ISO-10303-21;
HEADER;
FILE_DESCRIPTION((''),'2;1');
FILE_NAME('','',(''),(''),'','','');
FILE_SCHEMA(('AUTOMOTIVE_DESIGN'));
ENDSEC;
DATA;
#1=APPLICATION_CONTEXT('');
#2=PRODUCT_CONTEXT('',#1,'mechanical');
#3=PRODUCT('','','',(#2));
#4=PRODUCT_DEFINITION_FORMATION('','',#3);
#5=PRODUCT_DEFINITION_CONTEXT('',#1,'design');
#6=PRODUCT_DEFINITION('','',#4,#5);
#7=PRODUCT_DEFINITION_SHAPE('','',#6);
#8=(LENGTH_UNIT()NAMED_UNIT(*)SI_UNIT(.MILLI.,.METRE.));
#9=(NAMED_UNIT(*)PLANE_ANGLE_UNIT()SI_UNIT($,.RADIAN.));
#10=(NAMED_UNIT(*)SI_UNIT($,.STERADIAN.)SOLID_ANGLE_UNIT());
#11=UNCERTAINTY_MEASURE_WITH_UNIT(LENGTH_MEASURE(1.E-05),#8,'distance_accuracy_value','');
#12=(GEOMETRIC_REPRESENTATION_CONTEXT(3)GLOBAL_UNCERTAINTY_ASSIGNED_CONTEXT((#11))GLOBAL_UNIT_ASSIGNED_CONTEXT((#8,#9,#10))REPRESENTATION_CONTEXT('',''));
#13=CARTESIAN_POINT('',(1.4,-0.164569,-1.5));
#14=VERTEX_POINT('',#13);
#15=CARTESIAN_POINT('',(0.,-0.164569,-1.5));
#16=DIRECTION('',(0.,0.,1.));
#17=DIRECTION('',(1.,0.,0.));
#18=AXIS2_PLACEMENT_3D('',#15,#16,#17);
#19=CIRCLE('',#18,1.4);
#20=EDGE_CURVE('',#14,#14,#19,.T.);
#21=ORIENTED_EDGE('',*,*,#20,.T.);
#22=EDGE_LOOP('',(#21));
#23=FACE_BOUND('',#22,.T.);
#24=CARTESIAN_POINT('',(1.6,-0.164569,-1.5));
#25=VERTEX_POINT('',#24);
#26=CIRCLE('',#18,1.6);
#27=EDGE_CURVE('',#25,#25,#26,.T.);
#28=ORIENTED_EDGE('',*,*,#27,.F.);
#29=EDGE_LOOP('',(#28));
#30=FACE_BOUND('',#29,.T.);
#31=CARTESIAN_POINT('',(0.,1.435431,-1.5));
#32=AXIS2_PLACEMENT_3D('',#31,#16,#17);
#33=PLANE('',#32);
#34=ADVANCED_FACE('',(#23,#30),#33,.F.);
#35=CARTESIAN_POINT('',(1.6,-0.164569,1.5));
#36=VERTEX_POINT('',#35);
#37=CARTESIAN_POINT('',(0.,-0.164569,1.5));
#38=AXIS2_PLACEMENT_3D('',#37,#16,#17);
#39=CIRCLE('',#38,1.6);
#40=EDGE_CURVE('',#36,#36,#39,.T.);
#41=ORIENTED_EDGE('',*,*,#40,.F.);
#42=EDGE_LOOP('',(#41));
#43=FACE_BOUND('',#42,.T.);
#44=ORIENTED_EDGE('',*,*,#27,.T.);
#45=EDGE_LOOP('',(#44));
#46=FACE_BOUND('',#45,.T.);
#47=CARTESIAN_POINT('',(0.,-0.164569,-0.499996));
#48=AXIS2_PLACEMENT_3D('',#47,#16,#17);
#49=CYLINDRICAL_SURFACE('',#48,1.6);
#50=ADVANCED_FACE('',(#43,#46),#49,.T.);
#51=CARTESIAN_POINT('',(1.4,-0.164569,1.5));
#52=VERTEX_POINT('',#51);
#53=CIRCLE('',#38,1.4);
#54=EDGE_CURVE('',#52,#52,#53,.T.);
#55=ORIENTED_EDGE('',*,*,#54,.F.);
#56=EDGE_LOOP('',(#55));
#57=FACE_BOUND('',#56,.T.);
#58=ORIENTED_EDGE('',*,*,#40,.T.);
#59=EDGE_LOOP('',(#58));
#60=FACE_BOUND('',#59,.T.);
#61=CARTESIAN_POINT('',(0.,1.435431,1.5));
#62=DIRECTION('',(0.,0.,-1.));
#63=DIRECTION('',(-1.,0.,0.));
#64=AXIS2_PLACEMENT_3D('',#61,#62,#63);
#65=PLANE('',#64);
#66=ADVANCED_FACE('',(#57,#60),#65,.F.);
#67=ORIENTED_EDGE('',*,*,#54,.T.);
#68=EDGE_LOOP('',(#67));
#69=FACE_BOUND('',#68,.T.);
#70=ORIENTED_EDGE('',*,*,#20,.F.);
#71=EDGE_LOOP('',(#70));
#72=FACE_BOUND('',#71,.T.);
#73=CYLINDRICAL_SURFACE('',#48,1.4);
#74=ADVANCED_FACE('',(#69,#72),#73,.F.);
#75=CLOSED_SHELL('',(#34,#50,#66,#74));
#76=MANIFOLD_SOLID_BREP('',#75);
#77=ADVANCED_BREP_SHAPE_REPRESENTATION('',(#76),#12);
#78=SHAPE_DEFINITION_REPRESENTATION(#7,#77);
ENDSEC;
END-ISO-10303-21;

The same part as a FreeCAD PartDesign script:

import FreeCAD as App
import Part
import Sketcher
from FreeCAD import Vector
Q = App.Units.Quantity

doc = App.newDocument("Part")
params = doc.addObject("Spreadsheet::Sheet", "Params")
for row, (alias, value) in enumerate([
    ("sketch1_height", "3 mm"),
    ("sketch1_width", "0.2 mm"),
    ("revolution_angle", "360 deg"),
], start=1):
    params.set(f"A{row}", alias)
    params.set(f"B{row}", "=" + value)
    params.setAlias(f"B{row}", alias)

body = doc.addObject("PartDesign::Body", "Body")

# Sketch on YZ plane
sketch1 = body.newObject("Sketcher::SketchObject", "Sketch")
sketch1.AttachmentSupport = (doc.getObject("YZ_Plane"), [""])
sketch1.MapMode = "FlatFace"
sketch1.addGeometry(Part.LineSegment(Vector(1.435431, 1.5, 0), Vector(1.235431, 1.5, 0)), False)
sketch1.addGeometry(Part.LineSegment(Vector(1.235431, 1.5, 0), Vector(1.235431, -1.5, 0)), False)
sketch1.addGeometry(Part.LineSegment(Vector(1.235431, -1.5, 0), Vector(1.435431, -1.5, 0)), False)
sketch1.addGeometry(Part.LineSegment(Vector(1.435431, -1.5, 0), Vector(1.435431, 1.5, 0)), False)
sketch1.addGeometry(Part.LineSegment(Vector(-0.164569, 1.5, 0), Vector(-0.164569, -1.5, 0)), True)  # axis
sketch1.addConstraint(Sketcher.Constraint("Coincident", 0, 2, 1, 1))
sketch1.addConstraint(Sketcher.Constraint("Coincident", 1, 2, 2, 1))
sketch1.addConstraint(Sketcher.Constraint("Coincident", 2, 2, 3, 1))
sketch1.addConstraint(Sketcher.Constraint("Coincident", 3, 2, 0, 1))
sketch1.addConstraint(Sketcher.Constraint("Horizontal", 0))
sketch1.addConstraint(Sketcher.Constraint("Vertical", 1))
sketch1.addConstraint(Sketcher.Constraint("Horizontal", 2))
sketch1.addConstraint(Sketcher.Constraint("Vertical", 3))
sketch1.addConstraint(Sketcher.Constraint("Vertical", 4))
sketch1.addConstraint(Sketcher.Constraint("Horizontal", 3, 2, 4, 1))
sketch1.addConstraint(Sketcher.Constraint("Horizontal", 2, 2, 4, 2))
sketch1.addConstraint(Sketcher.Constraint("DistanceY", 1, 2, 1, 1, Q("3 mm")))
sketch1.addConstraint(Sketcher.Constraint("DistanceX", 0, 2, 0, 1, Q("0.2 mm")))
sketch1.addConstraint(Sketcher.Constraint("DistanceY", -1, 1, 0, 2, Q("1.5 mm")))
sketch1.addConstraint(Sketcher.Constraint("DistanceX", 4, 1, 0, 2, Q("1.4 mm")))
sketch1.addConstraint(Sketcher.Constraint("DistanceX", -1, 1, 0, 2, Q("1.235431 mm")))
sketch1.setExpression("Constraints[11]", "Params.sketch1_height")
sketch1.setExpression("Constraints[12]", "Params.sketch1_width")
revolution = body.newObject("PartDesign::Revolution", "Revolution")
revolution.Profile = sketch1
revolution.ReferenceAxis = (sketch1, ["Axis0"])
revolution.setExpression("Angle", "Params.revolution_angle")

doc.recompute()
